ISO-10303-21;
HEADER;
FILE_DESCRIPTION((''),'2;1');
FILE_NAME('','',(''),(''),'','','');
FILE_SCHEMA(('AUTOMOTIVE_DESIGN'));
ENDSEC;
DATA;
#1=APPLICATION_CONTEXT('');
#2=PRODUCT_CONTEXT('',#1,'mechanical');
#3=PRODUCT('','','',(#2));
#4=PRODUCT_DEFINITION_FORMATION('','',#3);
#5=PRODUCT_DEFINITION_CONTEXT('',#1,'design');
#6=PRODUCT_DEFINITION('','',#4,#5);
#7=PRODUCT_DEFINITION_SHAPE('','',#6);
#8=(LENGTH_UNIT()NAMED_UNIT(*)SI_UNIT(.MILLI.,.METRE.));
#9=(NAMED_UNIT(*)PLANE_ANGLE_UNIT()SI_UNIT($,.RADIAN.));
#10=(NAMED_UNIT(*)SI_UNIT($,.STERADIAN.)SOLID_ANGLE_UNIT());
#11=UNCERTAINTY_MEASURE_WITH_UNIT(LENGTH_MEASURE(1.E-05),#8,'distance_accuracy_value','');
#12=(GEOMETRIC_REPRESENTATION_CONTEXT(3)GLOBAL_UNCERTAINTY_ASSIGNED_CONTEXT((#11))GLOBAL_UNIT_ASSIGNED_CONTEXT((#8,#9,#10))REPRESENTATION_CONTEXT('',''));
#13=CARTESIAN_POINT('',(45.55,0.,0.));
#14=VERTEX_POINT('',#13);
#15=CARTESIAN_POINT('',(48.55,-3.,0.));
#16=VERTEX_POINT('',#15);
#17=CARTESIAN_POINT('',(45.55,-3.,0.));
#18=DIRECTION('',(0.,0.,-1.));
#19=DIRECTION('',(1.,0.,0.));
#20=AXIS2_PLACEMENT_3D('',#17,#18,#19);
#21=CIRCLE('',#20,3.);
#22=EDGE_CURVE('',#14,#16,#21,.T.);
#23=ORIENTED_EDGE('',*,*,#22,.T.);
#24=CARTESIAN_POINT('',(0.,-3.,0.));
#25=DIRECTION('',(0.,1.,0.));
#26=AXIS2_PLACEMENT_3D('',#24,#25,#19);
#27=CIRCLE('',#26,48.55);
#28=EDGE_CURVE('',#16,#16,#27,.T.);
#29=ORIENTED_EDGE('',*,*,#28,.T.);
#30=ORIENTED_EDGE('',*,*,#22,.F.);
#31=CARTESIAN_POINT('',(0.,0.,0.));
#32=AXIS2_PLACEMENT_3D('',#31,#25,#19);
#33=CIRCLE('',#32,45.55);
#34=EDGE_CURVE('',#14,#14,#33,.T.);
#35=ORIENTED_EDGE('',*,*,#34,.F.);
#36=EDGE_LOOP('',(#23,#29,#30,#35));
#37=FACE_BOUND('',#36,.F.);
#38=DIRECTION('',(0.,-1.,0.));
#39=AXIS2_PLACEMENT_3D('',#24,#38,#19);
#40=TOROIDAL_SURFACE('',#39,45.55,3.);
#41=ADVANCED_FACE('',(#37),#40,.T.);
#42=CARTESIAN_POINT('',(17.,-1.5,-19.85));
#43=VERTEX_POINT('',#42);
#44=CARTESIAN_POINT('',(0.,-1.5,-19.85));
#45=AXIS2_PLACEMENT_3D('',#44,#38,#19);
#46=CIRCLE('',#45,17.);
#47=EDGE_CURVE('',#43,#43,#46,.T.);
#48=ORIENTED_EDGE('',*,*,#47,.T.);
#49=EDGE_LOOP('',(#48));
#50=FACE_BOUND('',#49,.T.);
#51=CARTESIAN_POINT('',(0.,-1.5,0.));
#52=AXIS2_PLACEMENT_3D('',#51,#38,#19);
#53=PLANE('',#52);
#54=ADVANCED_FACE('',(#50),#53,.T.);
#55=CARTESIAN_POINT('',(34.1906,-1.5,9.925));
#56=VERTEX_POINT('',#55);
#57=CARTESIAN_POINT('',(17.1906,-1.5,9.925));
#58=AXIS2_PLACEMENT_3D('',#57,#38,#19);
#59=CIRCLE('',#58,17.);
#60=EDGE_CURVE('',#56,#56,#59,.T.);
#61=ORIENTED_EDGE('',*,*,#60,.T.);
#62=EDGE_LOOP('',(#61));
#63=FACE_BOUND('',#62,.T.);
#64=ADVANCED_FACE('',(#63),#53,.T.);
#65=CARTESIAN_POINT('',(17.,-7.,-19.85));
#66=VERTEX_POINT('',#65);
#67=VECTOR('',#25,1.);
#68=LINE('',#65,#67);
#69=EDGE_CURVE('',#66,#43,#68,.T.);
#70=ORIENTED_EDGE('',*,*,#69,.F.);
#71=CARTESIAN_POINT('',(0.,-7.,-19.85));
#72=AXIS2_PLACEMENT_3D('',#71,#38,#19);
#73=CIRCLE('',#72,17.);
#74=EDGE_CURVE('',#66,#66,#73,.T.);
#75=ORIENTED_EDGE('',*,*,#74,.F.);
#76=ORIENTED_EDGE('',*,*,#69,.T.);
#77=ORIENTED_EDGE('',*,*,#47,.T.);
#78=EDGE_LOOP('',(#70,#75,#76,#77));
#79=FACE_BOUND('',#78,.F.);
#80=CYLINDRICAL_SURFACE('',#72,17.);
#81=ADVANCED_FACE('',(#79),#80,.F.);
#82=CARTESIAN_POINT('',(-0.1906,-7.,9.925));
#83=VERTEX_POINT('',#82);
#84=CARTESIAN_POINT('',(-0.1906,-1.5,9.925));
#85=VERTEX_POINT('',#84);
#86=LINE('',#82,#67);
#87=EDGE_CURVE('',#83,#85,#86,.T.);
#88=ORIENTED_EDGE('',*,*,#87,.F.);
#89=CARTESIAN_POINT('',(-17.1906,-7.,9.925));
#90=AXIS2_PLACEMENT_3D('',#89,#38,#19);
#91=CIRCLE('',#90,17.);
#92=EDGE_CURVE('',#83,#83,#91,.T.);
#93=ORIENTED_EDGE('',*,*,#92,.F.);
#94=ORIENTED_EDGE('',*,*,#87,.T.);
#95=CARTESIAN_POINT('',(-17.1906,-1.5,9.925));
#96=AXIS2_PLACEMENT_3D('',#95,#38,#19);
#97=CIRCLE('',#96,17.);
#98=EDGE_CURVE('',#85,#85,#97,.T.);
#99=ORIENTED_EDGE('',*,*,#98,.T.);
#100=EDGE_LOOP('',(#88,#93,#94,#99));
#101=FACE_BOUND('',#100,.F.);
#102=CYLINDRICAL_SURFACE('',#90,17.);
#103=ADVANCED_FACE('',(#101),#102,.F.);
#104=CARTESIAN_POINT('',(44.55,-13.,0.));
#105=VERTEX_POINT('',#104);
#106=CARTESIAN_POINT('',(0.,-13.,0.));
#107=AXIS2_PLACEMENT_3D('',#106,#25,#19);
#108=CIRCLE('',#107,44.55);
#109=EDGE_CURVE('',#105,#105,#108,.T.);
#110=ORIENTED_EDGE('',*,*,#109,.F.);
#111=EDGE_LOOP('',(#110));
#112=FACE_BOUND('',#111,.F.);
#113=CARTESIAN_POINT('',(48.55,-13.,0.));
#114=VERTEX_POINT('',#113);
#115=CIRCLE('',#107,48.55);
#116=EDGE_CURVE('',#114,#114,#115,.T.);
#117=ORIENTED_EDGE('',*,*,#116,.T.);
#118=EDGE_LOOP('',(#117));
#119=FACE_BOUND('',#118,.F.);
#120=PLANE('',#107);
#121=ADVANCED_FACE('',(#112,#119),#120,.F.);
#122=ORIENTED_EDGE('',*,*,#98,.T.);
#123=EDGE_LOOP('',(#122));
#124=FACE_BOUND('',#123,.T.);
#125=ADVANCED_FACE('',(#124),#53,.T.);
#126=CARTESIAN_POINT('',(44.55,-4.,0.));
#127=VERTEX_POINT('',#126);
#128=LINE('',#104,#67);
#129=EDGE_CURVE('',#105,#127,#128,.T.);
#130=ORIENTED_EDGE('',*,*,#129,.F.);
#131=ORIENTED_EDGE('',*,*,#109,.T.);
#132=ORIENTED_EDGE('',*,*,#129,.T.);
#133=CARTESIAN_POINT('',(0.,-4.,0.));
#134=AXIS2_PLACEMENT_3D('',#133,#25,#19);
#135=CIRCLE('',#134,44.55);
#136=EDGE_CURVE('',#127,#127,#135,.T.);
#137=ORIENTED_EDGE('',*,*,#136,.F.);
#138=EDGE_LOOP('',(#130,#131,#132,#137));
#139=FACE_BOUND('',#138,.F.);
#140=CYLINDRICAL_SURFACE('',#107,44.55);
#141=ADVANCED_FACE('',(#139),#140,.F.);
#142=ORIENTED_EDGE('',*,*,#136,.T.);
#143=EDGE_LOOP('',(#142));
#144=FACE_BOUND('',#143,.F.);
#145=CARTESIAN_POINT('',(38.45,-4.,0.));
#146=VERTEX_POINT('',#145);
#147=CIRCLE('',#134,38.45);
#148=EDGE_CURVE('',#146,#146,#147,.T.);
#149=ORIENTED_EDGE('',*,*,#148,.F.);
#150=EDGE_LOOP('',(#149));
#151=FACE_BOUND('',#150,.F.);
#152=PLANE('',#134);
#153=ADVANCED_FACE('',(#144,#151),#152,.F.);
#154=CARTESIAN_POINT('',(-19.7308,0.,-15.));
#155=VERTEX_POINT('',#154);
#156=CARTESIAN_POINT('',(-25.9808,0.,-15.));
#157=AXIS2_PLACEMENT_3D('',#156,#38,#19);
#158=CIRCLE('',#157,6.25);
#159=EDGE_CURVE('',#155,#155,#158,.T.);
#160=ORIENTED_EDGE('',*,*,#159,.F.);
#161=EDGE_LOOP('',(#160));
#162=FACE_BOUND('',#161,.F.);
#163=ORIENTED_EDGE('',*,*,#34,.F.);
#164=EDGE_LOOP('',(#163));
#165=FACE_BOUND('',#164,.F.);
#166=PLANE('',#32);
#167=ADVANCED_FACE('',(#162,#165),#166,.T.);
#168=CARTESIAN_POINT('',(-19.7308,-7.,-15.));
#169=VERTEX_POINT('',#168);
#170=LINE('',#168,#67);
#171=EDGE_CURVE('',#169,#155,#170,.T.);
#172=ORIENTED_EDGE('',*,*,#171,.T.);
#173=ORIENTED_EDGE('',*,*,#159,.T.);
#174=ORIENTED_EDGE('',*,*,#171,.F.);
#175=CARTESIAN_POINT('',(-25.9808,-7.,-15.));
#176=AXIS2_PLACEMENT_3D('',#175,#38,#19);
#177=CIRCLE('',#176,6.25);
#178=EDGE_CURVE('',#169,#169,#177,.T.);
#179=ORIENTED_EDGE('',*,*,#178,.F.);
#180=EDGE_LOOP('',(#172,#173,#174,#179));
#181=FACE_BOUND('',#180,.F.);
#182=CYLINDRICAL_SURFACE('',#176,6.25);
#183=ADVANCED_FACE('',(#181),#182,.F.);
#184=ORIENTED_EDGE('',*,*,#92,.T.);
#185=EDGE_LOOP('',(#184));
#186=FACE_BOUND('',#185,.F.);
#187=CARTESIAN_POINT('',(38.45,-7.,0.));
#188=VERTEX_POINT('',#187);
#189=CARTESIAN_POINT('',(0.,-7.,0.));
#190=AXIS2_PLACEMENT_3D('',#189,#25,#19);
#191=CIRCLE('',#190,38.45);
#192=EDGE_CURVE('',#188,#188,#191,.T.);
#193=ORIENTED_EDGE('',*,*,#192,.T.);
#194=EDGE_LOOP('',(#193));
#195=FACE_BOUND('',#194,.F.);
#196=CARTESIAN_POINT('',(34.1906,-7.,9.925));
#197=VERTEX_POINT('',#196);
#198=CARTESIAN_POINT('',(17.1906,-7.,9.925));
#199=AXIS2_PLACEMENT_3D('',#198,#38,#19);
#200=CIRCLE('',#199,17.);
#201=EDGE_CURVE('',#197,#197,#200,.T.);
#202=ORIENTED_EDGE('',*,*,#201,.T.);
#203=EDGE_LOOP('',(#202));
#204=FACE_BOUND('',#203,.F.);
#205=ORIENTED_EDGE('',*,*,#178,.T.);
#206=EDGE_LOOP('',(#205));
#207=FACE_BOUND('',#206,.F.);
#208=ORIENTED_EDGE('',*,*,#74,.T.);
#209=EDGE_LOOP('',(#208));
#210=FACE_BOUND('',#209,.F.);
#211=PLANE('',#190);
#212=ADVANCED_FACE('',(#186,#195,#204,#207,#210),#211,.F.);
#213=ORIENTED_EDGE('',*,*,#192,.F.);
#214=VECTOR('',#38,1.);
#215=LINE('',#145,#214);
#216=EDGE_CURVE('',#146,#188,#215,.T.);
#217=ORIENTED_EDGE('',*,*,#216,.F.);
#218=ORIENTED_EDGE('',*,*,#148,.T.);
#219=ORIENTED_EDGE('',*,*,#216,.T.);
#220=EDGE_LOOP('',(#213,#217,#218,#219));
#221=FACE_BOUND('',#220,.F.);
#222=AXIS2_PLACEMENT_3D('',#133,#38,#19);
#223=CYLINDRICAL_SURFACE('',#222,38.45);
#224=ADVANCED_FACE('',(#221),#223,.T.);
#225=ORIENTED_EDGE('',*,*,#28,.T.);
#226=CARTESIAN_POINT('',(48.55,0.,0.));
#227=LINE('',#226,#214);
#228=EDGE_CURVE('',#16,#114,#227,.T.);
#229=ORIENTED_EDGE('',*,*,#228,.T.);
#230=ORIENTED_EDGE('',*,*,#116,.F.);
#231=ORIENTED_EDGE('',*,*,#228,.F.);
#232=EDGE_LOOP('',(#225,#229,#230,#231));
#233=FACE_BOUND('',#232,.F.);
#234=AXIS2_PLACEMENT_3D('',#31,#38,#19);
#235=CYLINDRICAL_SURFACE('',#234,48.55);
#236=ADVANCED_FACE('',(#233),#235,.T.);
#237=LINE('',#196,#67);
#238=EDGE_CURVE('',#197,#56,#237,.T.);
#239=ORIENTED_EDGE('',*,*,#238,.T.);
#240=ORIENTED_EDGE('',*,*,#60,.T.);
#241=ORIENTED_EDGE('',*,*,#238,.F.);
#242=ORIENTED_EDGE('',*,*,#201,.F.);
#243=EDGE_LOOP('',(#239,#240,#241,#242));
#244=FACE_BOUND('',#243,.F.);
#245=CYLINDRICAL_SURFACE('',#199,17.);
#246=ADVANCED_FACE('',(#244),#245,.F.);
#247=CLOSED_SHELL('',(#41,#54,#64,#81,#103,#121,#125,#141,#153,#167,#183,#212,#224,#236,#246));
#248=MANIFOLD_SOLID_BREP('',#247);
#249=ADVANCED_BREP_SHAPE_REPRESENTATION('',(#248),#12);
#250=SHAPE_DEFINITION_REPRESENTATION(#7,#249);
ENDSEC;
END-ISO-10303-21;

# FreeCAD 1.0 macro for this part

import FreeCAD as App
import Part
import Sketcher


def edges_at(feature, points):
    """Names of the edges that pass closest to the given points."""
    edges = feature.Shape.Edges
    near = lambda p: min(range(len(edges)), key=lambda i: edges[i].distToShape(Part.Vertex(*p))[0])
    return sorted({f"Edge{near(p) + 1}" for p in points})


def add_polygon(sketch, points):
    """Adds a closed chain of lines whose ends are joined by coincident constraints."""
    first, n = sketch.GeometryCount, len(points)
    for a, b in zip(points, points[1:] + points[:1]):
        sketch.addGeometry(Part.LineSegment(App.Vector(*a, 0), App.Vector(*b, 0)), False)
    for i in range(n):
        sketch.addConstraint(Sketcher.Constraint("Coincident", first + i, 2, first + (i + 1) % n, 1))

doc = App.newDocument("Part")
body = doc.addObject("PartDesign::Body", "Body")

# Sketch on XY plane
sketch1 = body.newObject("Sketcher::SketchObject", "Sketch")
sketch1.AttachmentSupport = (doc.getObject("XY_Plane"), [""])
sketch1.MapMode = "FlatFace"
add_polygon(sketch1, [(48.5, 0), (0, 0), (0, -7), (38.5, -7), (38.5, -4), (44.5, -4), (44.5, -13), (48.5, -13)])  # lines 0-7
sketch1.addConstraint(Sketcher.Constraint("Horizontal", 0))
sketch1.addConstraint(Sketcher.Constraint("Vertical", 1))
sketch1.addConstraint(Sketcher.Constraint("Horizontal", 2))
sketch1.addConstraint(Sketcher.Constraint("Vertical", 3))
sketch1.addConstraint(Sketcher.Constraint("Horizontal", 4))
sketch1.addConstraint(Sketcher.Constraint("Vertical", 5))
sketch1.addConstraint(Sketcher.Constraint("Horizontal", 6))
sketch1.addConstraint(Sketcher.Constraint("Vertical", 7))
sketch1.addConstraint(Sketcher.Constraint("Coincident", 0, 2, -1, 1))
sketch1.addConstraint(Sketcher.Constraint("DistanceX", 6, 1, 6, 2, 4.0))
sketch1.addConstraint(Sketcher.Constraint("DistanceY", 1, 2, 1, 1, 7.0))
sketch1.addConstraint(Sketcher.Constraint("DistanceY", 7, 1, 7, 2, 13.0))
sketch1.addConstraint(Sketcher.Constraint("DistanceX", 4, 1, 4, 2, 6.1))
sketch1.addConstraint(Sketcher.Constraint("DistanceY", 3, 2, -1, 1, 4.0))
sketch1.addConstraint(Sketcher.Constraint("DistanceX", 0, 2, 0, 1, 48.55))
revolution = body.newObject("PartDesign::Revolution", "Revolution")
revolution.Profile = sketch1
revolution.ReferenceAxis = (sketch1, ["V_Axis"])
revolution.Angle = 360
doc.recompute()

fillet = body.newObject("PartDesign::Fillet", "Fillet")
fillet.Base = (revolution, edges_at(revolution, [(-48.55, 0, 0)]))
fillet.Radius = 3

# Sketch on XZ plane
sketch2 = body.newObject("Sketcher::SketchObject", "Sketch001")
sketch2.AttachmentSupport = (doc.getObject("XZ_Plane"), [""])
sketch2.MapMode = "FlatFace"
sketch2.AttachmentOffset = App.Placement(App.Vector(0, 0, 7), App.Rotation())
sketch2.addGeometry(Part.Circle(App.Vector(0, -20, 0), App.Vector(0, 0, 1), 17), False)
sketch2.addGeometry(Part.Circle(App.Vector(17, 10, 0), App.Vector(0, 0, 1), 17), False)
sketch2.addGeometry(Part.Circle(App.Vector(-17, 10, 0), App.Vector(0, 0, 1), 17), False)
sketch2.addConstraint(Sketcher.Constraint("Equal", 0, 1))
sketch2.addConstraint(Sketcher.Constraint("Equal", 1, 2))
sketch2.addConstraint(Sketcher.Constraint("Symmetric", 1, 3, 2, 3, -2))
sketch2.addConstraint(Sketcher.Constraint("PointOnObject", 0, 3, -2))
sketch2.addConstraint(Sketcher.Constraint("Diameter", 0, 34.0))
sketch2.addConstraint(Sketcher.Constraint("DistanceY", 0, 3, -1, 1, 19.85))
sketch2.addConstraint(Sketcher.Constraint("DistanceY", -1, 1, 1, 3, 9.925))
sketch2.addConstraint(Sketcher.Constraint("DistanceX", -1, 1, 1, 3, 17.1906))
pocket1 = body.newObject("PartDesign::Pocket", "Pocket")
pocket1.Profile = sketch2
pocket1.Length = 5.5

# Sketch on XZ plane
sketch3 = body.newObject("Sketcher::SketchObject", "Sketch002")
sketch3.AttachmentSupport = (doc.getObject("XZ_Plane"), [""])
sketch3.MapMode = "FlatFace"
sketch3.AttachmentOffset = App.Placement(App.Vector(0, 0, 7), App.Rotation())
sketch3.addGeometry(Part.Circle(App.Vector(-26, -15, 0), App.Vector(0, 0, 1), 6), False)
sketch3.addConstraint(Sketcher.Constraint("Diameter", 0, 12.5))
sketch3.addConstraint(Sketcher.Constraint("DistanceY", 0, 3, -1, 1, 15.0))
sketch3.addConstraint(Sketcher.Constraint("DistanceX", 0, 3, -1, 1, 25.9808))
pocket2 = body.newObject("PartDesign::Pocket", "Pocket001")
pocket2.Profile = sketch3
pocket2.Type = "ThroughAll"

doc.recompute()
